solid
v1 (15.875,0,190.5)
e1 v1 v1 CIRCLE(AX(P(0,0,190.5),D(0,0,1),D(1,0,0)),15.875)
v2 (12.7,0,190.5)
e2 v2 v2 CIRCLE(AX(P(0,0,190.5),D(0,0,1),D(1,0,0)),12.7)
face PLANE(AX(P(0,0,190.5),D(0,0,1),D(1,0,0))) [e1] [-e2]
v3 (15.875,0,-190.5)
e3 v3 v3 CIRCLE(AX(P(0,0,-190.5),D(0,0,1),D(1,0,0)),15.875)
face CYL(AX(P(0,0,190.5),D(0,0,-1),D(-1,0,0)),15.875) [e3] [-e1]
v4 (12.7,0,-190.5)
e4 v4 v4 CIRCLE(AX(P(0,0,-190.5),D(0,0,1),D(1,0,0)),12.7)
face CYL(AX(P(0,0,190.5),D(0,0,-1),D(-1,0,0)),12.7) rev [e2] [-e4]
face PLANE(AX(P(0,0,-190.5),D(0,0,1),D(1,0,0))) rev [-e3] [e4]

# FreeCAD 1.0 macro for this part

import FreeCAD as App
import Part
import Sketcher

V = App.Vector
Q = App.Units.Quantity

doc = App.newDocument("Part")
body = doc.addObject("PartDesign::Body", "Body")

# Sketch on XY plane
sketch1 = body.newObject("Sketcher::SketchObject", "Sketch")
sketch1.AttachmentSupport = (doc.getObject("XY_Plane"), [""])
sketch1.MapMode = "FlatFace"
sketch1.addGeometry(Part.Circle(V(0, 0, 0), V(0, 0, 1), 16), False)
sketch1.addGeometry(Part.Circle(V(0, 0, 0), V(0, 0, 1), 13), False)
sketch1.addConstraint(Sketcher.Constraint("Coincident", 0, 3, -1, 1))
sketch1.addConstraint(Sketcher.Constraint("Coincident", 1, 3, -1, 1))
sketch1.addConstraint(Sketcher.Constraint("Diameter", 1, Q("1 in")))
sketch1.addConstraint(Sketcher.Constraint("Diameter", 0, Q("1.25 in")))
pad1 = body.newObject("PartDesign::Pad", "Pad")
pad1.Profile = sketch1
pad1.Length = Q("15 in")
pad1.Midplane = True

doc.recompute()
